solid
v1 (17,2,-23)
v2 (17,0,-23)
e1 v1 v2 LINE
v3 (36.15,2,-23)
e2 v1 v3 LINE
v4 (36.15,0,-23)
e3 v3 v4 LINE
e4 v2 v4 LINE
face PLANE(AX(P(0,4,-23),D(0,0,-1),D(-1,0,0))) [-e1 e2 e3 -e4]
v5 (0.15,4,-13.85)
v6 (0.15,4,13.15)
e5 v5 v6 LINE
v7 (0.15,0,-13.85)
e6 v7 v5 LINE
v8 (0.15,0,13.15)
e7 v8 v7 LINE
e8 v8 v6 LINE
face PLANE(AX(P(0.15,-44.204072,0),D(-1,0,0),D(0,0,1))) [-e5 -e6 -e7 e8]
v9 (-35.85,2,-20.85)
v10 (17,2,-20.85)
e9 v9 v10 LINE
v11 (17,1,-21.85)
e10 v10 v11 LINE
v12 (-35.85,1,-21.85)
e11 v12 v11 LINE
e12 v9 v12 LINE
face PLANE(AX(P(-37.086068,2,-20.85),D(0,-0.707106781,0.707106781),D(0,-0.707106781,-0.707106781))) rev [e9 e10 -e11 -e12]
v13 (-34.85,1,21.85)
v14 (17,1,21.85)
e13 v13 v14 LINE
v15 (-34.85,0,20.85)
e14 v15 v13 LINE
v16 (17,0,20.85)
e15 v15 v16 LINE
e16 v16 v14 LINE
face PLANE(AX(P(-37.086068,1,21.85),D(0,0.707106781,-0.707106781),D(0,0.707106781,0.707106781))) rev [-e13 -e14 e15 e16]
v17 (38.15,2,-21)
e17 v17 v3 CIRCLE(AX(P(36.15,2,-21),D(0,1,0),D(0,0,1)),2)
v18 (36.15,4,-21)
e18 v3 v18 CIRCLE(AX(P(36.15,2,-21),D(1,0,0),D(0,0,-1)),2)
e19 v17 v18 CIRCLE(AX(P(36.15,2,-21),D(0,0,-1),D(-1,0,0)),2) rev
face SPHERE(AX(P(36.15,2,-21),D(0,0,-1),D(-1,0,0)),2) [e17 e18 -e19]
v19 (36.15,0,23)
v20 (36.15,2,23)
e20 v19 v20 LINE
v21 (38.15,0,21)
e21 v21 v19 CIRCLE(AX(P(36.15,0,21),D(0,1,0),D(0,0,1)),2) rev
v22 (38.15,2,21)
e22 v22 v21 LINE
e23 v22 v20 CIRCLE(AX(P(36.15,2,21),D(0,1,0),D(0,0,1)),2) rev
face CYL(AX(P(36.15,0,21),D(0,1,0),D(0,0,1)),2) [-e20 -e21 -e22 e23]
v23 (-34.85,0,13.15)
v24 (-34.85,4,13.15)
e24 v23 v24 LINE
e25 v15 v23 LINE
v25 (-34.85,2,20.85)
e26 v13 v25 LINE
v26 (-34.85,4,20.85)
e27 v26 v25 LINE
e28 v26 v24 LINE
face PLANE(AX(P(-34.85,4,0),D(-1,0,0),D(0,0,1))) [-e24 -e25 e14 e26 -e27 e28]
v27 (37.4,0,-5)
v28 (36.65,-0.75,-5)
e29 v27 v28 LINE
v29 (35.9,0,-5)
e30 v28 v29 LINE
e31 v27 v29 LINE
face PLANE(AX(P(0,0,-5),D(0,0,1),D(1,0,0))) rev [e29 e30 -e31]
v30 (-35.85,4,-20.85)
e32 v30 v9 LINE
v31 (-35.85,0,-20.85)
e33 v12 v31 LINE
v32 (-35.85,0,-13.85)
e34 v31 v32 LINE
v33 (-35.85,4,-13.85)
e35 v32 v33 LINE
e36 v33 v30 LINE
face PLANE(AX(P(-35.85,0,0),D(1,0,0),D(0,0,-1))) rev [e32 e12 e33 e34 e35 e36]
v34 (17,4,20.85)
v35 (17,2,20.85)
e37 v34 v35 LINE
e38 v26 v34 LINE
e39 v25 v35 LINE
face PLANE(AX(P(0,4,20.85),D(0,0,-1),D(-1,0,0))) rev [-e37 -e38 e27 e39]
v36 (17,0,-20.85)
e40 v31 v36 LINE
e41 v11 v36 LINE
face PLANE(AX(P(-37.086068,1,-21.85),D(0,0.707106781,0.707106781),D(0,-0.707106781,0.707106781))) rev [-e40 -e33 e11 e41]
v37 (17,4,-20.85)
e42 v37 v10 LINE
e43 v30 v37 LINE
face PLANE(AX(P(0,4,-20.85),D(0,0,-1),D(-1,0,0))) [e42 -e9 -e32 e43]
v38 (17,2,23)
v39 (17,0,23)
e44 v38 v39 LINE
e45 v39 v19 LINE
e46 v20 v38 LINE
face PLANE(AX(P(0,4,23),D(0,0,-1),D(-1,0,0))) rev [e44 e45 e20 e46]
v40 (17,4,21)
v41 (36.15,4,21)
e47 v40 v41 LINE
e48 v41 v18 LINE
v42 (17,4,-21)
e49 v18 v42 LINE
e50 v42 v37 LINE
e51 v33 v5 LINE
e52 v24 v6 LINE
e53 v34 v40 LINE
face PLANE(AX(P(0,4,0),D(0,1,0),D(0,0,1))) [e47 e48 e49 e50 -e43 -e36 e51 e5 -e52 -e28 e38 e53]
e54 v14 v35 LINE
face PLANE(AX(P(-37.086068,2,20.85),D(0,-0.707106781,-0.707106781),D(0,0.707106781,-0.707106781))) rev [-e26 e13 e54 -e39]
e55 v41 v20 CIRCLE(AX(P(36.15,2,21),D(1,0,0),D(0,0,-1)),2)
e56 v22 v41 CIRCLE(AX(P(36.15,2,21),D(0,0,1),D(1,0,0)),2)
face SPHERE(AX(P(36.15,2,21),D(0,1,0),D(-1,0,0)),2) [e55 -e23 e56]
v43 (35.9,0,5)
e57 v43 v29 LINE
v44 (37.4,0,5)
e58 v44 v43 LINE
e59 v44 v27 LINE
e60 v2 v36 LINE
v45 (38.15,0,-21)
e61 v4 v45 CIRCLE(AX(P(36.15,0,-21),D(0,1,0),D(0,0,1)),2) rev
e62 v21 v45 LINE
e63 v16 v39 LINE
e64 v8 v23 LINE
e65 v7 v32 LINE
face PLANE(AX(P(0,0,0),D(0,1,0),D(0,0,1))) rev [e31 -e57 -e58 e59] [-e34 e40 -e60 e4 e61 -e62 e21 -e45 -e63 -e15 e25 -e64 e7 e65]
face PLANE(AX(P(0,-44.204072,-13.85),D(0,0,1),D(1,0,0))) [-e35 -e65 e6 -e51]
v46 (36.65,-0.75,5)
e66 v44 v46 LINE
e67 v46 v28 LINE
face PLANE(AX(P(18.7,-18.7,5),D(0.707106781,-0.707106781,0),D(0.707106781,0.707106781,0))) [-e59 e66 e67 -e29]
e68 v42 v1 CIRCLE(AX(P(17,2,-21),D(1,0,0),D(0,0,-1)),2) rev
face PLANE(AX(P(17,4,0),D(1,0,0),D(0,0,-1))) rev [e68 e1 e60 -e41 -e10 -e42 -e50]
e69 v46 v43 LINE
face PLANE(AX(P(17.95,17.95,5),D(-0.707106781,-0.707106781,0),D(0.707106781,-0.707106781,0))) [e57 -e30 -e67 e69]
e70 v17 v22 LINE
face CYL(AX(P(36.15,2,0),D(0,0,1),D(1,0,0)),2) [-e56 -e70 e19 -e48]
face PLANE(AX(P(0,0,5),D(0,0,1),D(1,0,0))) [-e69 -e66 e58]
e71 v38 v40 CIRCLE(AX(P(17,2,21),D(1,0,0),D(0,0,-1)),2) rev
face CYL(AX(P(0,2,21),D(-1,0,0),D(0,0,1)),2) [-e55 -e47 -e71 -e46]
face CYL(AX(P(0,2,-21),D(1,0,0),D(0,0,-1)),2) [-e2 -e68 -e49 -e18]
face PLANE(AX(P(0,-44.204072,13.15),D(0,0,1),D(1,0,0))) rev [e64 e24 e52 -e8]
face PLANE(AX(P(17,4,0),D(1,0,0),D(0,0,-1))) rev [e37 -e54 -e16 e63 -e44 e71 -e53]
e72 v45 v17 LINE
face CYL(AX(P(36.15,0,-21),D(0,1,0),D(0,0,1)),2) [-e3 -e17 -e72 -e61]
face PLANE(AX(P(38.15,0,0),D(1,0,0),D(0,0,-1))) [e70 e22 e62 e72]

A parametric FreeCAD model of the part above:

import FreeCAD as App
import Part
import Sketcher
Q = App.Units.Quantity


def edges_at(feature, points):
    """Names of the edges that pass closest to the given points."""
    edges = feature.Shape.Edges
    near = lambda p: min(range(len(edges)), key=lambda i: edges[i].distToShape(Part.Vertex(*p))[0])
    return sorted({f"Edge{near(p) + 1}" for p in points})

doc = App.newDocument("Part")
body = doc.addObject("PartDesign::Body", "Body")

# Sketch on XZ plane
sketch1 = body.newObject("Sketcher::SketchObject", "Sketch")
sketch1.AttachmentSupport = (doc.getObject("XZ_Plane"), [""])
sketch1.MapMode = "FlatFace"
sketch1.addGeometry([
    Part.LineSegment(App.Vector(17, -20.9, 0), App.Vector(-34.9, -20.9, 0)),  # 0
    Part.LineSegment(App.Vector(-34.9, -20.9, 0), App.Vector(-34.9, 20.9, 0)),  # 1
    Part.LineSegment(App.Vector(-34.9, 20.9, 0), App.Vector(17, 20.9, 0)),  # 2
    Part.LineSegment(App.Vector(17, 20.9, 0), App.Vector(17, 23, 0)),  # 3
    Part.LineSegment(App.Vector(17, 23, 0), App.Vector(37, 23, 0)),  # 4
    Part.LineSegment(App.Vector(37, 23, 0), App.Vector(37, -23, 0)),  # 5
    Part.LineSegment(App.Vector(37, -23, 0), App.Vector(17, -23, 0)),  # 6
    Part.LineSegment(App.Vector(17, -23, 0), App.Vector(17, -20.9, 0)),  # 7
], False)
sketch1.addConstraint([
    Sketcher.Constraint("Coincident", 0, 2, 1, 1),
    Sketcher.Constraint("Coincident", 1, 2, 2, 1),
    Sketcher.Constraint("Coincident", 2, 2, 3, 1),
    Sketcher.Constraint("Coincident", 3, 2, 4, 1),
    Sketcher.Constraint("Coincident", 4, 2, 5, 1),
    Sketcher.Constraint("Coincident", 5, 2, 6, 1),
    Sketcher.Constraint("Coincident", 6, 2, 7, 1),
    Sketcher.Constraint("Coincident", 7, 2, 0, 1),
    Sketcher.Constraint("Horizontal", 0),
    Sketcher.Constraint("Vertical", 1),
    Sketcher.Constraint("Horizontal", 2),
    Sketcher.Constraint("Vertical", 3),
    Sketcher.Constraint("Horizontal", 4),
    Sketcher.Constraint("Vertical", 5),
    Sketcher.Constraint("Horizontal", 6),
    Sketcher.Constraint("Vertical", 7),
    Sketcher.Constraint("Symmetric", 3, 2, 6, 2, -1),
    Sketcher.Constraint("Equal", 3, 7),
    Sketcher.Constraint("DistanceX", 4, 1, 4, 2, Q("20 mm")),
    Sketcher.Constraint("DistanceY", 5, 2, 5, 1, Q("46 mm")),
    Sketcher.Constraint("DistanceY", 1, 1, 1, 2, Q("41.7 mm")),
    Sketcher.Constraint("DistanceX", -1, 1, 2, 2, Q("17 mm")),
    Sketcher.Constraint("DistanceX", 0, 2, 0, 1, Q("51.85 mm")),
])
pad1 = body.newObject("PartDesign::Pad", "Pad")
pad1.Profile = sketch1
pad1.Length = 4
pad1.Reversed = True

# Sketch on YZ plane
sketch2 = body.newObject("Sketcher::SketchObject", "Sketch001")
sketch2.AttachmentSupport = (doc.getObject("YZ_Plane"), [""])
sketch2.MapMode = "FlatFace"
sketch2.AttachmentOffset = App.Placement(App.Vector(0, 0, 17), App.Rotation())
sketch2.addGeometry([
    Part.LineSegment(App.Vector(2, -20.9, 0), App.Vector(1, -21.9, 0)),
    Part.LineSegment(App.Vector(1, -21.9, 0), App.Vector(0, -20.9, 0)),
    Part.LineSegment(App.Vector(0, -20.9, 0), App.Vector(2, -20.9, 0)),
], False)
sketch2.addConstraint([
    Sketcher.Constraint("Coincident", 0, 2, 1, 1),
    Sketcher.Constraint("Coincident", 1, 2, 2, 1),
    Sketcher.Constraint("Coincident", 2, 2, 0, 1),
    Sketcher.Constraint("Horizontal", 2),
    Sketcher.Constraint("PointOnObject", 1, 2, -2),
    Sketcher.Constraint("Perpendicular", 0, 1),
    Sketcher.Constraint("Equal", 0, 1),
    Sketcher.Constraint("DistanceX", 2, 1, 2, 2, Q("2 mm")),
    Sketcher.Constraint("DistanceY", 0, 2, -1, 1, Q("21.85 mm")),
])
pad2 = body.newObject("PartDesign::Pad", "Pad001")
pad2.Profile = sketch2
pad2.Length = 51.85
pad2.Reversed = True

# Sketch on YZ plane
sketch3 = body.newObject("Sketcher::SketchObject", "Sketch002")
sketch3.AttachmentSupport = (doc.getObject("YZ_Plane"), [""])
sketch3.MapMode = "FlatFace"
sketch3.AttachmentOffset = App.Placement(App.Vector(0, 0, 17), App.Rotation())
sketch3.addGeometry([
    Part.LineSegment(App.Vector(1, 21.9, 0), App.Vector(2, 20.9, 0)),
    Part.LineSegment(App.Vector(2, 20.9, 0), App.Vector(0, 20.9, 0)),
    Part.LineSegment(App.Vector(0, 20.9, 0), App.Vector(1, 21.9, 0)),
], False)
sketch3.addConstraint([
    Sketcher.Constraint("Coincident", 0, 2, 1, 1),
    Sketcher.Constraint("Coincident", 1, 2, 2, 1),
    Sketcher.Constraint("Coincident", 2, 2, 0, 1),
    Sketcher.Constraint("Horizontal", 1),
    Sketcher.Constraint("PointOnObject", 1, 2, -2),
    Sketcher.Constraint("Perpendicular", 0, 2),
    Sketcher.Constraint("Equal", 0, 2),
    Sketcher.Constraint("DistanceX", 1, 2, 1, 1, Q("2 mm")),
    Sketcher.Constraint("DistanceY", -1, 1, 0, 2, Q("20.85 mm")),
])
pad3 = body.newObject("PartDesign::Pad", "Pad002")
pad3.Profile = sketch3
pad3.Length = 51.85
pad3.Reversed = True

# Sketch on XZ plane
sketch4 = body.newObject("Sketcher::SketchObject", "Sketch003")
sketch4.AttachmentSupport = (doc.getObject("XZ_Plane"), [""])
sketch4.MapMode = "FlatFace"
sketch4.AttachmentOffset = App.Placement(App.Vector(0, 0, -4), App.Rotation())
sketch4.addGeometry([
    Part.LineSegment(App.Vector(0, 13, 0), App.Vector(0, -14, 0)),
    Part.LineSegment(App.Vector(0, -14, 0), App.Vector(-35, -14, 0)),
    Part.LineSegment(App.Vector(-35, -14, 0), App.Vector(-35, 13, 0)),
    Part.LineSegment(App.Vector(-35, 13, 0), App.Vector(0, 13, 0)),
], False)
sketch4.addConstraint([
    Sketcher.Constraint("Coincident", 0, 2, 1, 1),
    Sketcher.Constraint("Coincident", 1, 2, 2, 1),
    Sketcher.Constraint("Coincident", 2, 2, 3, 1),
    Sketcher.Constraint("Coincident", 3, 2, 0, 1),
    Sketcher.Constraint("Vertical", 0),
    Sketcher.Constraint("Horizontal", 1),
    Sketcher.Constraint("Vertical", 2),
    Sketcher.Constraint("Horizontal", 3),
    Sketcher.Constraint("DistanceX", 1, 2, 1, 1, Q("35 mm")),
    Sketcher.Constraint("DistanceY", 0, 2, 0, 1, Q("27 mm")),
    Sketcher.Constraint("DistanceX", -1, 1, 0, 2, Q("0.15 mm")),
    Sketcher.Constraint("DistanceY", 0, 2, -1, 1, Q("13.85 mm")),
])
pocket1 = body.newObject("PartDesign::Pocket", "Pocket")
pocket1.Profile = sketch4
pocket1.Length = 4
pocket1.Reversed = True

# Sketch on YZ plane
sketch5 = body.newObject("Sketcher::SketchObject", "Sketch004")
sketch5.AttachmentSupport = (doc.getObject("YZ_Plane"), [""])
sketch5.MapMode = "FlatFace"
sketch5.AttachmentOffset = App.Placement(App.Vector(0, 0, 37), App.Rotation())
sketch5.addGeometry([
    Part.LineSegment(App.Vector(4, 23, 0), App.Vector(0, 23, 0)),
    Part.LineSegment(App.Vector(0, 23, 0), App.Vector(0, -23, 0)),
    Part.LineSegment(App.Vector(0, -23, 0), App.Vector(4, -23, 0)),
    Part.LineSegment(App.Vector(4, -23, 0), App.Vector(4, 23, 0)),
], False)
sketch5.addConstraint([
    Sketcher.Constraint("Coincident", 0, 2, 1, 1),
    Sketcher.Constraint("Coincident", 1, 2, 2, 1),
    Sketcher.Constraint("Coincident", 2, 2, 3, 1),
    Sketcher.Constraint("Coincident", 3, 2, 0, 1),
    Sketcher.Constraint("Horizontal", 0),
    Sketcher.Constraint("Vertical", 1),
    Sketcher.Constraint("Horizontal", 2),
    Sketcher.Constraint("Vertical", 3),
    Sketcher.Constraint("Symmetric", 0, 2, 1, 2, -1, 1),
    Sketcher.Constraint("DistanceX", 0, 2, 0, 1, Q("4 mm")),
    Sketcher.Constraint("DistanceY", 1, 2, 1, 1, Q("46 mm")),
])
pad4 = body.newObject("PartDesign::Pad", "Pad003")
pad4.Profile = sketch5
pad4.Length = 1.15

# Sketch on XY plane
sketch6 = body.newObject("Sketcher::SketchObject", "Sketch005")
sketch6.AttachmentSupport = (doc.getObject("XY_Plane"), [""])
sketch6.MapMode = "FlatFace"
sketch6.addGeometry([
    Part.LineSegment(App.Vector(36.6, -0.8, 0), App.Vector(37.4, 0, 0)),
    Part.LineSegment(App.Vector(37.4, 0, 0), App.Vector(35.9, 0, 0)),
    Part.LineSegment(App.Vector(35.9, 0, 0), App.Vector(36.6, -0.8, 0)),
], False)
sketch6.addConstraint([
    Sketcher.Constraint("Coincident", 0, 2, 1, 1),
    Sketcher.Constraint("Coincident", 1, 2, 2, 1),
    Sketcher.Constraint("Coincident", 2, 2, 0, 1),
    Sketcher.Constraint("Horizontal", 1),
    Sketcher.Constraint("PointOnObject", 0, 2, -1),
    Sketcher.Constraint("Perpendicular", 0, 2),
    Sketcher.Constraint("Equal", 0, 2),
    Sketcher.Constraint("DistanceX", 1, 2, 1, 1, Q("1.5 mm")),
    Sketcher.Constraint("DistanceX", -1, 1, 0, 2, Q("37.4 mm")),
])
pad5 = body.newObject("PartDesign::Pad", "Pad004")
pad5.Profile = sketch6
pad5.Length = 10
pad5.Midplane = True

# Sketch on YZ plane
sketch7 = body.newObject("Sketcher::SketchObject", "Sketch006")
sketch7.AttachmentSupport = (doc.getObject("YZ_Plane"), [""])
sketch7.MapMode = "FlatFace"
sketch7.AttachmentOffset = App.Placement(App.Vector(0, 0, -34.85), App.Rotation())
sketch7.addGeometry([
    Part.LineSegment(App.Vector(0, -13.8, 0), App.Vector(4, -13.8, 0)),  # 0
    Part.LineSegment(App.Vector(4, -13.8, 0), App.Vector(4, -20.9, 0)),  # 1
    Part.LineSegment(App.Vector(4, -20.9, 0), App.Vector(2, -20.9, 0)),  # 2
    Part.LineSegment(App.Vector(2, -20.9, 0), App.Vector(1, -21.9, 0)),  # 3
    Part.LineSegment(App.Vector(1, -21.9, 0), App.Vector(0, -20.9, 0)),  # 4
    Part.LineSegment(App.Vector(0, -20.9, 0), App.Vector(0, -13.8, 0)),  # 5
], False)
sketch7.addConstraint([
    Sketcher.Constraint("Coincident", 0, 2, 1, 1),
    Sketcher.Constraint("Coincident", 1, 2, 2, 1),
    Sketcher.Constraint("Coincident", 2, 2, 3, 1),
    Sketcher.Constraint("Coincident", 3, 2, 4, 1),
    Sketcher.Constraint("Coincident", 4, 2, 5, 1),
    Sketcher.Constraint("Coincident", 5, 2, 0, 1),
    Sketcher.Constraint("Horizontal", 0),
    Sketcher.Constraint("Vertical", 1),
    Sketcher.Constraint("Horizontal", 2),
    Sketcher.Constraint("Vertical", 5),
    Sketcher.Constraint("PointOnObject", 4, 2, -2),
    Sketcher.Constraint("Perpendicular", 3, 4),
    Sketcher.Constraint("Horizontal", 2, 2, 4, 2),
    Sketcher.Constraint("Equal", 3, 4),
    Sketcher.Constraint("DistanceX", 0, 1, 0, 2, Q("4 mm")),
    Sketcher.Constraint("DistanceX", 2, 2, 2, 1, Q("2 mm")),
    Sketcher.Constraint("DistanceY", 1, 2, 1, 1, Q("7 mm")),
    Sketcher.Constraint("DistanceY", 0, 2, -1, 1, Q("13.85 mm")),
])
pad6 = body.newObject("PartDesign::Pad", "Pad005")
pad6.Profile = sketch7
pad6.Length = 1
pad6.Reversed = True
doc.recompute()

fillet = body.newObject("PartDesign::Fillet", "Fillet")
fillet.Base = (pad6, edges_at(pad6, [
    (27.575, 4, 23),
    (27.575, 4, -23),
    (38.15, 2, 23),
    (38.15, 2, -23),
    (38.15, 4, 0),
]))
fillet.Radius = 2

doc.recompute()
